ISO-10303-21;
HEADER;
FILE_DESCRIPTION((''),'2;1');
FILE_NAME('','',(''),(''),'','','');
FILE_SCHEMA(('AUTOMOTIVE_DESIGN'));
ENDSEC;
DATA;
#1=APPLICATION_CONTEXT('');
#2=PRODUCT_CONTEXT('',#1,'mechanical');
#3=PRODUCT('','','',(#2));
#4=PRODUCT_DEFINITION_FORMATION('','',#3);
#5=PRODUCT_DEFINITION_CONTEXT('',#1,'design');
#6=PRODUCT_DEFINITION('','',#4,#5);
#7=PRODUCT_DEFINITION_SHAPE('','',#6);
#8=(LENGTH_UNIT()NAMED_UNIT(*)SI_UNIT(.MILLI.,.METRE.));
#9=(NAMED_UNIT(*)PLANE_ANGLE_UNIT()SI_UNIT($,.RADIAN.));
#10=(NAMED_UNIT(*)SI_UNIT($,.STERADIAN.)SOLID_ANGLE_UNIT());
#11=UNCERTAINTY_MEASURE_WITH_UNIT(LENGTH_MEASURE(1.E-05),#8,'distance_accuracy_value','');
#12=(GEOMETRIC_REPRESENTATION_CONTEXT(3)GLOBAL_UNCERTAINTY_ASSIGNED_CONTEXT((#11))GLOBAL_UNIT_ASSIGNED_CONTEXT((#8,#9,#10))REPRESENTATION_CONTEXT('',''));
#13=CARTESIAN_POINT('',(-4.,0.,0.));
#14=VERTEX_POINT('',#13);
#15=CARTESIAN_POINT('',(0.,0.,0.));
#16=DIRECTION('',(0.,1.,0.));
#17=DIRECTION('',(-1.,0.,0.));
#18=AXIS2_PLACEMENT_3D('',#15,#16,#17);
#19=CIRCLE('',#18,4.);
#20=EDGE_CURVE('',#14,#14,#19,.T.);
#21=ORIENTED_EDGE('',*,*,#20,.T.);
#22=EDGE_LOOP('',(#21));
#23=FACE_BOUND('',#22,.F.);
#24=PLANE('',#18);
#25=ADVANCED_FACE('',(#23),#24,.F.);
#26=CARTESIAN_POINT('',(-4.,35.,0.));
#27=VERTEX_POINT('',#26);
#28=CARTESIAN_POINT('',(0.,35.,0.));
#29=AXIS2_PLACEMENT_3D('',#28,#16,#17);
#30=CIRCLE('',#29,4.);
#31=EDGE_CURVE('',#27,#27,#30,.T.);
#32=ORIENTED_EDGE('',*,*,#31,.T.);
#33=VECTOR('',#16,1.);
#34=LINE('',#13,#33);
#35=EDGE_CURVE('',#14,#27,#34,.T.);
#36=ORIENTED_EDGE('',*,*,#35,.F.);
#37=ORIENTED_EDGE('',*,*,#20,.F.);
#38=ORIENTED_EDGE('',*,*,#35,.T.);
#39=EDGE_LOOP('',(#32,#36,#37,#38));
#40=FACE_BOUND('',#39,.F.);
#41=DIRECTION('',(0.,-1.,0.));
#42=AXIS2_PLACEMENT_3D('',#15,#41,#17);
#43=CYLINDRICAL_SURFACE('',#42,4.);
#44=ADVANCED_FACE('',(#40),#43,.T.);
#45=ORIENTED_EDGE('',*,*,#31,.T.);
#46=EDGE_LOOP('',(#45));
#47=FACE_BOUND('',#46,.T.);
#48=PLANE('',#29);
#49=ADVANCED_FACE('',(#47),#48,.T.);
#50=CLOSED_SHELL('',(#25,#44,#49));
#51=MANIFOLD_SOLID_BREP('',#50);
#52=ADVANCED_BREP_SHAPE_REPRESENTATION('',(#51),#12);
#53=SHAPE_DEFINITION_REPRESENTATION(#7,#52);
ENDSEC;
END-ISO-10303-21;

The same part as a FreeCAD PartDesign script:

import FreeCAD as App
import Part
import Sketcher
Q = App.Units.Quantity

doc = App.newDocument("Part")
body = doc.addObject("PartDesign::Body", "Body")

# Sketch on XZ plane
sketch1 = body.newObject("Sketcher::SketchObject", "Sketch")
sketch1.AttachmentSupport = (doc.getObject("XZ_Plane"), [""])
sketch1.MapMode = "FlatFace"
sketch1.addGeometry(Part.Circle(App.Vector(0, 0, 0), App.Vector(0, 0, 1), 4), False)
sketch1.addConstraint([
    Sketcher.Constraint("Coincident", 0, 3, -1, 1),
    Sketcher.Constraint("Diameter", 0, Q("8 mm")),
])
pad1 = body.newObject("PartDesign::Pad", "Pad")
pad1.Profile = sketch1
pad1.Length = 35
pad1.Reversed = True

doc.recompute()
